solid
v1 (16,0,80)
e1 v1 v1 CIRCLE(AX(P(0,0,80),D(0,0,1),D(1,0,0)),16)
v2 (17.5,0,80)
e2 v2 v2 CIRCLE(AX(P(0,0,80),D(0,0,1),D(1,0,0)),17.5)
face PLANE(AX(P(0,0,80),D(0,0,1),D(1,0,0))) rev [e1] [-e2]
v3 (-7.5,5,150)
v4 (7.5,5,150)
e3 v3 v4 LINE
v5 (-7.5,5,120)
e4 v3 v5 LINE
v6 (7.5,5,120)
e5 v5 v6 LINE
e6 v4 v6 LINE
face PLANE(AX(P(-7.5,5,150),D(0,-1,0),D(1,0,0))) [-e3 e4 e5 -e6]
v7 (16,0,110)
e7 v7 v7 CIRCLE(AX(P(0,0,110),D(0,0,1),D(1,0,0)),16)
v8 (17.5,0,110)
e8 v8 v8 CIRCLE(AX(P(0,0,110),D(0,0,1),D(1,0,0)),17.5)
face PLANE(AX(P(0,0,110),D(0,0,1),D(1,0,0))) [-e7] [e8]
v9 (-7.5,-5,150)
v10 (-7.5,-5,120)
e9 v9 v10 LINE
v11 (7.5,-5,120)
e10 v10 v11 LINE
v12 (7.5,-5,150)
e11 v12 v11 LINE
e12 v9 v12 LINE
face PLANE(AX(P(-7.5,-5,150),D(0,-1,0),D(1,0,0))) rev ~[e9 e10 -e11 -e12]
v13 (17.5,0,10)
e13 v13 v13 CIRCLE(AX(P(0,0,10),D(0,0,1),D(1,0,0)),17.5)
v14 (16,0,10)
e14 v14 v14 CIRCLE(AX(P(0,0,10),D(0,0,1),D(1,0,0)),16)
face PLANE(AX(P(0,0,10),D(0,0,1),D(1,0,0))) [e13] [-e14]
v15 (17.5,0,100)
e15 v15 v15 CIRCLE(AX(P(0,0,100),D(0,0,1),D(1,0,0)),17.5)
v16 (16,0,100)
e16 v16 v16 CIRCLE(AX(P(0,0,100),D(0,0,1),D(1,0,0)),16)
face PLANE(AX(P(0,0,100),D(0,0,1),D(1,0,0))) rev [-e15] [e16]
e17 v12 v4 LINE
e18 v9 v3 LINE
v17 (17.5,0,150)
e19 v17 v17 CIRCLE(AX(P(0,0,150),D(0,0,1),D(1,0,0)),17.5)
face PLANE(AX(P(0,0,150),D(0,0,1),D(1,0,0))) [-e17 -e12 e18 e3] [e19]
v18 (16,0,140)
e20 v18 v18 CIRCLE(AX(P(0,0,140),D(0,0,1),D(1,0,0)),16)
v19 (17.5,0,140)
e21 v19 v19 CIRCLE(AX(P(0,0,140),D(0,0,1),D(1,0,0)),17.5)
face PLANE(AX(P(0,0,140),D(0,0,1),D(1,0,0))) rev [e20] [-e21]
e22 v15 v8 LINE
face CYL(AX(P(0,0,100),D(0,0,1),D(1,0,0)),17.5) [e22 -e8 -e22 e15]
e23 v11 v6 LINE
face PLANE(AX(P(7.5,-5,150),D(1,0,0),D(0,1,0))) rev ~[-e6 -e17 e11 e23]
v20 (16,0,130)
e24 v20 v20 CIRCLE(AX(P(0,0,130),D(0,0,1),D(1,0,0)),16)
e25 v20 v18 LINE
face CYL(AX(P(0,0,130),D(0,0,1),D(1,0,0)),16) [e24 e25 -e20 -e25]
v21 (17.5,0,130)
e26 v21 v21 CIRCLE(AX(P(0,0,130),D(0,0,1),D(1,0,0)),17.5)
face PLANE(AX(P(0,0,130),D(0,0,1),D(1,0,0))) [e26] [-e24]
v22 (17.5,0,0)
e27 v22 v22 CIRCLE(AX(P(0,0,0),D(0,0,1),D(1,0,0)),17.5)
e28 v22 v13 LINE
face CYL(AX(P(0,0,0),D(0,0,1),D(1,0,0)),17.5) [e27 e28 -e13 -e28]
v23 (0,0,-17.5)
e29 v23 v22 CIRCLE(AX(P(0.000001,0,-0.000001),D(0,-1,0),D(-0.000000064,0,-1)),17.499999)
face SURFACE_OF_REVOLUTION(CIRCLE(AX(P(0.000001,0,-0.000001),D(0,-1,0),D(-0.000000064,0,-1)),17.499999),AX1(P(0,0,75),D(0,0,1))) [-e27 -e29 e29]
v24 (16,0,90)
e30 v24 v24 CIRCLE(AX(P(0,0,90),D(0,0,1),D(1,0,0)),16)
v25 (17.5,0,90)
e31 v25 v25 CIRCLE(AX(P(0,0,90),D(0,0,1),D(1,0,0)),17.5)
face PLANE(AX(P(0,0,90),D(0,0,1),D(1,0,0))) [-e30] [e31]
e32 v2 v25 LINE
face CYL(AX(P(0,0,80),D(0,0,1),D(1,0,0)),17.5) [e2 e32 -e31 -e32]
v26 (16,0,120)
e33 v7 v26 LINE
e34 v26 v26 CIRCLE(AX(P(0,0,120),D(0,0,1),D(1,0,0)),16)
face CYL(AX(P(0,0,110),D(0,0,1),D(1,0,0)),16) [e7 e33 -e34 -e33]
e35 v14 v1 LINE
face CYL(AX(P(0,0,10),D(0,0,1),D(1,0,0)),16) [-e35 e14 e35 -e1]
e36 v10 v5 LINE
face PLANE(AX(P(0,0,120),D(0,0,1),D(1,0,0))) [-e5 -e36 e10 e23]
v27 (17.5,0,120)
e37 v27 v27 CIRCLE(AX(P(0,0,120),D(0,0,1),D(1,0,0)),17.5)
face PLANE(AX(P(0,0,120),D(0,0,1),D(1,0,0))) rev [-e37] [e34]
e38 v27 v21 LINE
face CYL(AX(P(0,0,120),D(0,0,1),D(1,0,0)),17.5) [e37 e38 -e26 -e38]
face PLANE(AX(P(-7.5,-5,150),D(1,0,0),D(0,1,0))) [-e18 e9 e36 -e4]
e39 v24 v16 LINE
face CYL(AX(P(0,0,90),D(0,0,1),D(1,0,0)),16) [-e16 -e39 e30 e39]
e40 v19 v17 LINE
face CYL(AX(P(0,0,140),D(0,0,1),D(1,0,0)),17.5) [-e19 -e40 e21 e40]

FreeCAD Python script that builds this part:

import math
import FreeCAD as App
import Part
import Sketcher
Q = App.Units.Quantity


def add_polygon(sketch, points):
    """Adds a closed chain of lines whose ends are joined by coincident constraints."""
    first, n = sketch.GeometryCount, len(points)
    for a, b in zip(points, points[1:] + points[:1]):
        sketch.addGeometry(Part.LineSegment(App.Vector(*a, 0), App.Vector(*b, 0)), False)
    for i in range(n):
        sketch.addConstraint(Sketcher.Constraint("Coincident", first + i, 2, first + (i + 1) % n, 1))

doc = App.newDocument("Part")
body = doc.addObject("PartDesign::Body", "Body")

# Sketch on XZ plane
sketch1 = doc.addObject("Sketcher::SketchObject", "Sketch")
body.addObject(sketch1)
sketch1.AttachmentSupport = (doc.XZ_Plane, [""])
sketch1.MapMode = "FlatFace"
sketch1.addGeometry([
    Part.ArcOfCircle(Part.Circle(App.Vector(0, 0, 0), App.Vector(0, 0, 1), 17.5), math.radians(-90), math.radians(0)),  # 0
    Part.LineSegment(App.Vector(17.5, 0, 0), App.Vector(17.5, 10, 0)),  # 1
    Part.LineSegment(App.Vector(17.5, 10, 0), App.Vector(16, 10, 0)),  # 2
    Part.LineSegment(App.Vector(16, 10, 0), App.Vector(16, 80, 0)),  # 3
    Part.LineSegment(App.Vector(16, 80, 0), App.Vector(17.5, 80, 0)),  # 4
    Part.LineSegment(App.Vector(17.5, 80, 0), App.Vector(17.5, 90, 0)),  # 5
    Part.LineSegment(App.Vector(17.5, 90, 0), App.Vector(16, 90, 0)),  # 6
    Part.LineSegment(App.Vector(16, 90, 0), App.Vector(16, 100, 0)),  # 7
    Part.LineSegment(App.Vector(16, 100, 0), App.Vector(17.5, 100, 0)),  # 8
    Part.LineSegment(App.Vector(17.5, 100, 0), App.Vector(17.5, 110, 0)),  # 9
    Part.LineSegment(App.Vector(17.5, 110, 0), App.Vector(16, 110, 0)),  # 10
    Part.LineSegment(App.Vector(16, 110, 0), App.Vector(16, 120, 0)),  # 11
    Part.LineSegment(App.Vector(16, 120, 0), App.Vector(17.5, 120, 0)),  # 12
    Part.LineSegment(App.Vector(17.5, 120, 0), App.Vector(17.5, 130, 0)),  # 13
    Part.LineSegment(App.Vector(17.5, 130, 0), App.Vector(16, 130, 0)),  # 14
    Part.LineSegment(App.Vector(16, 130, 0), App.Vector(16, 140, 0)),  # 15
    Part.LineSegment(App.Vector(16, 140, 0), App.Vector(17.5, 140, 0)),  # 16
    Part.LineSegment(App.Vector(17.5, 140, 0), App.Vector(17.5, 150, 0)),  # 17
    Part.LineSegment(App.Vector(17.5, 150, 0), App.Vector(0, 150, 0)),  # 18
    Part.LineSegment(App.Vector(0, 150, 0), App.Vector(0, -17.5, 0)),  # 19
], False)
sketch1.addConstraint([
    Sketcher.Constraint("Tangent", 0, 2, 1, 1),
    Sketcher.Constraint("Coincident", 1, 2, 2, 1),
    Sketcher.Constraint("Coincident", 2, 2, 3, 1),
    Sketcher.Constraint("Coincident", 3, 2, 4, 1),
    Sketcher.Constraint("Coincident", 4, 2, 5, 1),
    Sketcher.Constraint("Coincident", 5, 2, 6, 1),
    Sketcher.Constraint("Coincident", 6, 2, 7, 1),
    Sketcher.Constraint("Coincident", 7, 2, 8, 1),
    Sketcher.Constraint("Coincident", 8, 2, 9, 1),
    Sketcher.Constraint("Coincident", 9, 2, 10, 1),
    Sketcher.Constraint("Coincident", 10, 2, 11, 1),
    Sketcher.Constraint("Coincident", 11, 2, 12, 1),
    Sketcher.Constraint("Coincident", 12, 2, 13, 1),
    Sketcher.Constraint("Coincident", 13, 2, 14, 1),
    Sketcher.Constraint("Coincident", 14, 2, 15, 1),
    Sketcher.Constraint("Coincident", 15, 2, 16, 1),
    Sketcher.Constraint("Coincident", 16, 2, 17, 1),
    Sketcher.Constraint("Coincident", 17, 2, 18, 1),
    Sketcher.Constraint("Coincident", 18, 2, 19, 1),
    Sketcher.Constraint("Coincident", 19, 2, 0, 1),
    Sketcher.Constraint("Vertical", 1),
    Sketcher.Constraint("Horizontal", 2),
    Sketcher.Constraint("Vertical", 3),
    Sketcher.Constraint("Horizontal", 4),
    Sketcher.Constraint("Vertical", 5),
    Sketcher.Constraint("Horizontal", 6),
    Sketcher.Constraint("Vertical", 7),
    Sketcher.Constraint("Horizontal", 8),
    Sketcher.Constraint("Vertical", 9),
    Sketcher.Constraint("Horizontal", 10),
    Sketcher.Constraint("Vertical", 11),
    Sketcher.Constraint("Horizontal", 12),
    Sketcher.Constraint("Vertical", 13),
    Sketcher.Constraint("Horizontal", 14),
    Sketcher.Constraint("Vertical", 15),
    Sketcher.Constraint("Horizontal", 16),
    Sketcher.Constraint("Vertical", 17),
    Sketcher.Constraint("Horizontal", 18),
    Sketcher.Constraint("Vertical", 19),
    Sketcher.Constraint("Coincident", 0, 3, -1, 1),
    Sketcher.Constraint("PointOnObject", 18, 2, -2),
    Sketcher.Constraint("Vertical", 1, 2, 4, 2),
    Sketcher.Constraint("Vertical", 3, 2, 6, 2),
    Sketcher.Constraint("Vertical", 5, 2, 8, 2),
    Sketcher.Constraint("Vertical", 7, 2, 10, 2),
    Sketcher.Constraint("Vertical", 9, 2, 12, 2),
    Sketcher.Constraint("Vertical", 11, 2, 14, 2),
    Sketcher.Constraint("Vertical", 13, 2, 16, 2),
    Sketcher.Constraint("Equal", 1, 5),
    Sketcher.Constraint("Equal", 5, 7),
    Sketcher.Constraint("Equal", 7, 9),
    Sketcher.Constraint("Equal", 9, 11),
    Sketcher.Constraint("Equal", 11, 13),
    Sketcher.Constraint("Equal", 13, 15),
    Sketcher.Constraint("Equal", 15, 17),
    Sketcher.Constraint("Radius", 0, Q("17.499999 mm")),
    Sketcher.Constraint("DistanceY", 1, 1, 1, 2, Q("10 mm")),
    Sketcher.Constraint("DistanceY", 3, 1, 3, 2, Q("70 mm")),
    Sketcher.Constraint("DistanceX", 2, 2, 2, 1, Q("1.5 mm")),
])
revolution = doc.addObject("PartDesign::Revolution", "Revolution")
body.addObject(revolution)
revolution.Profile = sketch1
revolution.ReferenceAxis = (sketch1, ["V_Axis"])
revolution.Angle = 360

# Sketch on XY plane
sketch2 = doc.addObject("Sketcher::SketchObject", "Sketch001")
body.addObject(sketch2)
sketch2.AttachmentSupport = (doc.XY_Plane, [""])
sketch2.MapMode = "FlatFace"
sketch2.AttachmentOffset = App.Placement(App.Vector(0, 0, 150), App.Rotation())
add_polygon(sketch2, [(-8, 5), (-8, -5), (8, -5), (8, 5)])  # lines 0-3
sketch2.addConstraint([
    Sketcher.Constraint("Vertical", 0),
    Sketcher.Constraint("Horizontal", 1),
    Sketcher.Constraint("Vertical", 2),
    Sketcher.Constraint("Horizontal", 3),
    Sketcher.Constraint("Symmetric", 0, 2, 2, 2, -1, 1),
    Sketcher.Constraint("DistanceX", 1, 1, 1, 2, Q("15 mm")),
    Sketcher.Constraint("DistanceY", 0, 2, 0, 1, Q("10 mm")),
])
pocket1 = doc.addObject("PartDesign::Pocket", "Pocket")
body.addObject(pocket1)
pocket1.Profile = sketch2
pocket1.Length = 30

doc.recompute()
